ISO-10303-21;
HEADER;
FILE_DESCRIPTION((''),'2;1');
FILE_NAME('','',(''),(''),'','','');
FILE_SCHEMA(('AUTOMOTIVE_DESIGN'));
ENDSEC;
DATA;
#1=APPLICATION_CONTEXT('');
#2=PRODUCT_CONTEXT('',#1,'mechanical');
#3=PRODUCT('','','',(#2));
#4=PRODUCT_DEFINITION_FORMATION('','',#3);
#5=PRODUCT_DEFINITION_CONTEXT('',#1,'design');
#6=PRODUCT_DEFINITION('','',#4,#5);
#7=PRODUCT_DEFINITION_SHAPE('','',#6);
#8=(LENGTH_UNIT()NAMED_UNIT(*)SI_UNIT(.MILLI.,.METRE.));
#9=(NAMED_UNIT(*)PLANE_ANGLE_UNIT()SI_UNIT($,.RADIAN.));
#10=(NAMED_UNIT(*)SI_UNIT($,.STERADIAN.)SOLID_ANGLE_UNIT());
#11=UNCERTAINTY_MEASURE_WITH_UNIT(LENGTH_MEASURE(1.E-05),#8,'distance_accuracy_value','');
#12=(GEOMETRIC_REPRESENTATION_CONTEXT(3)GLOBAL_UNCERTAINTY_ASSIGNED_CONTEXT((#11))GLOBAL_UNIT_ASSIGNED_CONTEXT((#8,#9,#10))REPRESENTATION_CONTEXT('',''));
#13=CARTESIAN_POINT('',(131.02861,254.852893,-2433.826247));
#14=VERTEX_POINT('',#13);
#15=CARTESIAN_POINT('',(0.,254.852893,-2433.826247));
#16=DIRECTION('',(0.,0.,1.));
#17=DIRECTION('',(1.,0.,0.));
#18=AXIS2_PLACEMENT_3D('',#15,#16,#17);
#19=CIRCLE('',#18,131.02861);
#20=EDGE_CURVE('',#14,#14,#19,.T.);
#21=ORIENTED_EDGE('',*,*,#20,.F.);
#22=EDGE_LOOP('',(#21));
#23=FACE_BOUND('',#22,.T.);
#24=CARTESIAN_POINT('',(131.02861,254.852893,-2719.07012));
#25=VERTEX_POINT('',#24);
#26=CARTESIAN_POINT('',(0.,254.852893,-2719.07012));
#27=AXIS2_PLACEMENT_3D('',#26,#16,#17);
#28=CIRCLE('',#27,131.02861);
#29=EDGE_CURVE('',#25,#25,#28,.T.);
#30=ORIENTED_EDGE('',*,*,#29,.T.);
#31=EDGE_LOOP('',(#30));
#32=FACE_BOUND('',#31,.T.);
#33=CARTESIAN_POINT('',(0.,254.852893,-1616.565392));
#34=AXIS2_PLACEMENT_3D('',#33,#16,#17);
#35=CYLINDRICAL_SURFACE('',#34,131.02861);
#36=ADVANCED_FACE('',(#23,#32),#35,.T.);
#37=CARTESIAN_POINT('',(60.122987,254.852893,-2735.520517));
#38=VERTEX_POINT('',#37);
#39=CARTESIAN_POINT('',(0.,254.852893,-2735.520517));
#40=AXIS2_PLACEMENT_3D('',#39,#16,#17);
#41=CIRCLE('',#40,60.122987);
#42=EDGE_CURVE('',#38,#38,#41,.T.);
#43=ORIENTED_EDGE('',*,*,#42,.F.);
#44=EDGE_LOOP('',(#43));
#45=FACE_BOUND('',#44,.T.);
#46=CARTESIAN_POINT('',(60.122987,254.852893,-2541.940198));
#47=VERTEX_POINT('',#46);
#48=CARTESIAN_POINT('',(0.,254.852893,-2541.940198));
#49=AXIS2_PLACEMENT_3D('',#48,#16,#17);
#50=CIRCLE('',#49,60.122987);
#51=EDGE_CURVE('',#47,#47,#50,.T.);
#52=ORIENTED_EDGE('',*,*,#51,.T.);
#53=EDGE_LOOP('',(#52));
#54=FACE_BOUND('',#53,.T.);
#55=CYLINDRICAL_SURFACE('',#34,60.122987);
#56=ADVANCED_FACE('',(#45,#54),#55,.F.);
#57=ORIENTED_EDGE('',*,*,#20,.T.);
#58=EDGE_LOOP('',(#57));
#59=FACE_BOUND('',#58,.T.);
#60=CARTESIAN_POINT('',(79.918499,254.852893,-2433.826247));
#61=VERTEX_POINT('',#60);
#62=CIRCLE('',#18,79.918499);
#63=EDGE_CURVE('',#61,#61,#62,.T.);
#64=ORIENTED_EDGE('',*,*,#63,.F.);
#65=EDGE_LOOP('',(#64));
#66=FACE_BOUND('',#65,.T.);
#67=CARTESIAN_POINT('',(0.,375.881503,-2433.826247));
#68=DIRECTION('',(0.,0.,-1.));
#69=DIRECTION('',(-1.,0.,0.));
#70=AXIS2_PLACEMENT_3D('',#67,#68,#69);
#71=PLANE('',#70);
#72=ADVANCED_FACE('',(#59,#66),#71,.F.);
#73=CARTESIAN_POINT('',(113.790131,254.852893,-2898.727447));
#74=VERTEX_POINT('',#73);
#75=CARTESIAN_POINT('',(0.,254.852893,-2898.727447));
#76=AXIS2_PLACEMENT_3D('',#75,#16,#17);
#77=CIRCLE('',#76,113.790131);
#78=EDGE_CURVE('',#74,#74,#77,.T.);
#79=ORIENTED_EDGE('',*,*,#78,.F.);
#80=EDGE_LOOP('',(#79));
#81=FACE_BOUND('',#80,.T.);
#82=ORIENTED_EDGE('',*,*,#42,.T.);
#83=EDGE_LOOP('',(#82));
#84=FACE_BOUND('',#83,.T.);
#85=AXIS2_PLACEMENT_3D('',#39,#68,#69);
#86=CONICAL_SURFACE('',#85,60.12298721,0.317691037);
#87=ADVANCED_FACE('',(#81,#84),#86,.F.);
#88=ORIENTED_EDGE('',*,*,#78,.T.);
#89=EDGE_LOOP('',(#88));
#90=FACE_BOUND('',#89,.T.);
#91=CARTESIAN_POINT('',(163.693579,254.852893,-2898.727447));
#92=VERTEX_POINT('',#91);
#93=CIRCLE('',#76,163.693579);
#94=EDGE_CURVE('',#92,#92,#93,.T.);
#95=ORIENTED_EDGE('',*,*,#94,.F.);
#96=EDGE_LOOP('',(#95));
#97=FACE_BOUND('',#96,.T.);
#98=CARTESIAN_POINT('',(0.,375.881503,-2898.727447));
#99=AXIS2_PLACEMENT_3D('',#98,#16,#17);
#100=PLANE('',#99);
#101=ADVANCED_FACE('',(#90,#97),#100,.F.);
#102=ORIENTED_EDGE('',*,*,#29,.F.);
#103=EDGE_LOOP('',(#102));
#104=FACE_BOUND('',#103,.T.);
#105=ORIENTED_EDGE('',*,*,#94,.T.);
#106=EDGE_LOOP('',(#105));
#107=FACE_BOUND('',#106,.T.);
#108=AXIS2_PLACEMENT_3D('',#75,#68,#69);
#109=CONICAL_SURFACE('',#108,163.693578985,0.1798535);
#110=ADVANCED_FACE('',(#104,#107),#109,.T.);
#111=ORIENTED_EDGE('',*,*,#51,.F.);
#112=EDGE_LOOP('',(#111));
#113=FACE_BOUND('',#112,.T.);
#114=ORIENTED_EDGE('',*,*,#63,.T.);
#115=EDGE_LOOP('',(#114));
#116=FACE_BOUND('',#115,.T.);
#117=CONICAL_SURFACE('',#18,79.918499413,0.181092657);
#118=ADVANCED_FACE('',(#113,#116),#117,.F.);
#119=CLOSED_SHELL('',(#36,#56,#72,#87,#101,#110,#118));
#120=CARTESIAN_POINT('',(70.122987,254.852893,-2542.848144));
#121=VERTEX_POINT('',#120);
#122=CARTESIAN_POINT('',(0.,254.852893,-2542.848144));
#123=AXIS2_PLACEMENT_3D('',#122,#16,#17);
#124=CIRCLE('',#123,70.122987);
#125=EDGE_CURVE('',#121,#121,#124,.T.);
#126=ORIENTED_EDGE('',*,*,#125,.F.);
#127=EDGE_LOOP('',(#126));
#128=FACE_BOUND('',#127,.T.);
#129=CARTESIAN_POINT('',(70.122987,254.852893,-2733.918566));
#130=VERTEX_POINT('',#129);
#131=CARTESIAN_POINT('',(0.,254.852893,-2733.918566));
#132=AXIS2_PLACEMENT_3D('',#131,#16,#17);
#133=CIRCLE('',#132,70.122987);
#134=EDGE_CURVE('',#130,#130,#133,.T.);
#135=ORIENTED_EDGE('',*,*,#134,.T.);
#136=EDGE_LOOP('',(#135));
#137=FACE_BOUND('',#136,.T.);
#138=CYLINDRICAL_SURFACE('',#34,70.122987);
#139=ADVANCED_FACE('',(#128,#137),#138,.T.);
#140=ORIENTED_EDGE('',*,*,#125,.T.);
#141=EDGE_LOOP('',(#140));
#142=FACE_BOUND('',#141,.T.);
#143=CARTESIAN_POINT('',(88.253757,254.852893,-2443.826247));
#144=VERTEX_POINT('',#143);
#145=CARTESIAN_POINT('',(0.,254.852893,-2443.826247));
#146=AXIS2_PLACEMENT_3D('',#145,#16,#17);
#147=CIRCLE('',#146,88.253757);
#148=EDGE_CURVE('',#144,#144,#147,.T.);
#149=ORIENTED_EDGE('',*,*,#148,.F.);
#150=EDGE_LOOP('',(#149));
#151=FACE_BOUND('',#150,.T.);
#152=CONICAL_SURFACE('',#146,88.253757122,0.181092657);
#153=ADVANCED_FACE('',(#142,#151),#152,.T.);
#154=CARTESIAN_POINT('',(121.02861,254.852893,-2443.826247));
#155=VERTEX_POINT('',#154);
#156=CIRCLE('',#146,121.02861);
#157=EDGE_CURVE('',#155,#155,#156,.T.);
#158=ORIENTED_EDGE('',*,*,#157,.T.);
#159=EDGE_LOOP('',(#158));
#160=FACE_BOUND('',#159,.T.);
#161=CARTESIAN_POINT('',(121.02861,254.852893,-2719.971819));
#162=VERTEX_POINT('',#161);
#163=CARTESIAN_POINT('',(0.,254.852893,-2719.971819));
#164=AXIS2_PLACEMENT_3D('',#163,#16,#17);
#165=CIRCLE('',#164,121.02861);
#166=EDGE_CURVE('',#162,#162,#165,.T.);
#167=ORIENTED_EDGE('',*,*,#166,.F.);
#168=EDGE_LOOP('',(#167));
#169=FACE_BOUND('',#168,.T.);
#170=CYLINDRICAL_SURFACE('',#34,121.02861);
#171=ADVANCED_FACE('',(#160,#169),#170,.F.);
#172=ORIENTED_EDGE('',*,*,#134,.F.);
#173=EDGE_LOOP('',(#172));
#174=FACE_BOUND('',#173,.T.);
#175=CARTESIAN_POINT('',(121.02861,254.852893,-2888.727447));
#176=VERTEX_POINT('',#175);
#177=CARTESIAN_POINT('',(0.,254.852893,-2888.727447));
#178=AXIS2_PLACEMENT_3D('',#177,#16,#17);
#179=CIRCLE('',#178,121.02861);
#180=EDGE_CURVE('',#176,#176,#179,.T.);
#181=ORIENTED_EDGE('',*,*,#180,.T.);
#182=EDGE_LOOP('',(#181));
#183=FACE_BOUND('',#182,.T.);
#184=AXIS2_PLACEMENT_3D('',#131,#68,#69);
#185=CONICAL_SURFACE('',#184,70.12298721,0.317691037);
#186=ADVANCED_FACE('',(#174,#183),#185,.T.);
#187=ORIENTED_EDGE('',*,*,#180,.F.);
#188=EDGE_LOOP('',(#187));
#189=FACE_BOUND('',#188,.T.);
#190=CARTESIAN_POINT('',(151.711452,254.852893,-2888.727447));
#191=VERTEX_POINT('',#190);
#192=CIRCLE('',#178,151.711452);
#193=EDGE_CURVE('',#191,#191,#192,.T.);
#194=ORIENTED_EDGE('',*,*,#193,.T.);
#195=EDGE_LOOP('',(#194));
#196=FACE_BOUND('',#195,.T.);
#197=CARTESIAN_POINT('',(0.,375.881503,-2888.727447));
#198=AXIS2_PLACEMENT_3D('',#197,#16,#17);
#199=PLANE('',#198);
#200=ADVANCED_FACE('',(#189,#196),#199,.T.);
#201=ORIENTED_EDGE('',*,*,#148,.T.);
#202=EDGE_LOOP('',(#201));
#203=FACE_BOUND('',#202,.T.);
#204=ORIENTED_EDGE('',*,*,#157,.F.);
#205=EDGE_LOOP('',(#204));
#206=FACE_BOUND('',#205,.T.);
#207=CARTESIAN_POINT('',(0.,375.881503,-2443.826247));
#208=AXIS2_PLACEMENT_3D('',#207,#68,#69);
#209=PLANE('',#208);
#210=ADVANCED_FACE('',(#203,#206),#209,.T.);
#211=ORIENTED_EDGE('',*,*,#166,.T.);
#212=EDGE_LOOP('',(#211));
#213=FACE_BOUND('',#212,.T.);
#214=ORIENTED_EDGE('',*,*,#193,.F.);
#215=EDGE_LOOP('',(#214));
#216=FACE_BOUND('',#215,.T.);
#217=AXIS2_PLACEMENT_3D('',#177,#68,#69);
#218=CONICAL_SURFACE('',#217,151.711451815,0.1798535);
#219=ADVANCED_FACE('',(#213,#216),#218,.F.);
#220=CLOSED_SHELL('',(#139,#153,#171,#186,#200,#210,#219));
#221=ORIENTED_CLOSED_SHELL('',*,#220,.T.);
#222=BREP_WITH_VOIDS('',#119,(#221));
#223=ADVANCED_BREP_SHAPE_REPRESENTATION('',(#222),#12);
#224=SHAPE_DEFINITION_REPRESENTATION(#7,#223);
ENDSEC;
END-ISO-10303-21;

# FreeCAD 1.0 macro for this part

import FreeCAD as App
import Part
import Sketcher

V = App.Vector
Q = App.Units.Quantity

doc = App.newDocument("Part")
body = doc.addObject("PartDesign::Body", "Body")

sketch1 = body.newObject("Sketcher::SketchObject", "Sketch")
sketch1.AttachmentSupport = (doc.getObject("YZ_Plane"), [""])
sketch1.MapMode = "FlatFace"
sketch1.addGeometry([
    Part.LineSegment(V(385.881503, -2433.826247, 0), V(334.771392, -2433.826247, 0)),
    Part.LineSegment(V(334.771392, -2433.826247, 0), V(314.97588, -2541.940198, 0)),
    Part.LineSegment(V(314.97588, -2541.940198, 0), V(314.97588, -2735.520517, 0)),
    Part.LineSegment(V(314.97588, -2735.520517, 0), V(368.643024, -2898.727447, 0)),
    Part.LineSegment(V(368.643024, -2898.727447, 0), V(418.546472, -2898.727447, 0)),
    Part.LineSegment(V(418.546472, -2898.727447, 0), V(385.881503, -2719.07012, 0)),
    Part.LineSegment(V(385.881503, -2719.07012, 0), V(385.881503, -2433.826247, 0)),
    Part.LineSegment(V(343.10665, -2443.826247, 0), V(375.881503, -2443.826247, 0)),
    Part.LineSegment(V(375.881503, -2443.826247, 0), V(375.881503, -2719.971819, 0)),
    Part.LineSegment(V(375.881503, -2719.971819, 0), V(406.564344, -2888.727447, 0)),
    Part.LineSegment(V(406.564344, -2888.727447, 0), V(375.881503, -2888.727447, 0)),
    Part.LineSegment(V(375.881503, -2888.727447, 0), V(324.97588, -2733.918566, 0)),
    Part.LineSegment(V(324.97588, -2733.918566, 0), V(324.97588, -2542.848144, 0)),
    Part.LineSegment(V(324.97588, -2542.848144, 0), V(343.10665, -2443.826247, 0)),
], False)
sketch1.addGeometry(Part.LineSegment(V(254.852893, -2433.826247, 0), V(254.852893, -2898.727447, 0)), True)
sketch1.addConstraint([
    Sketcher.Constraint("Coincident", 0, 2, 1, 1),
    Sketcher.Constraint("Coincident", 1, 2, 2, 1),
    Sketcher.Constraint("Coincident", 2, 2, 3, 1),
    Sketcher.Constraint("Coincident", 3, 2, 4, 1),
    Sketcher.Constraint("Coincident", 4, 2, 5, 1),
    Sketcher.Constraint("Coincident", 5, 2, 6, 1),
    Sketcher.Constraint("Coincident", 6, 2, 0, 1),
    Sketcher.Constraint("Coincident", 7, 2, 8, 1),
    Sketcher.Constraint("Coincident", 8, 2, 9, 1),
    Sketcher.Constraint("Coincident", 9, 2, 10, 1),
    Sketcher.Constraint("Coincident", 10, 2, 11, 1),
    Sketcher.Constraint("Coincident", 11, 2, 12, 1),
    Sketcher.Constraint("Coincident", 12, 2, 13, 1),
    Sketcher.Constraint("Coincident", 13, 2, 7, 1),
    Sketcher.Constraint("Horizontal", 0),
    Sketcher.Constraint("Vertical", 2),
    Sketcher.Constraint("Horizontal", 4),
    Sketcher.Constraint("Vertical", 6),
    Sketcher.Constraint("Horizontal", 7),
    Sketcher.Constraint("Vertical", 8),
    Sketcher.Constraint("Horizontal", 10),
    Sketcher.Constraint("Vertical", 12),
    Sketcher.Constraint("Vertical", 14),
    Sketcher.Constraint("Parallel", 5, 9),
    Sketcher.Constraint("Parallel", 3, 11),
    Sketcher.Constraint("Parallel", 1, 13),
    Sketcher.Constraint("Horizontal", 6, 2, 14, 1),
    Sketcher.Constraint("Horizontal", 4, 2, 14, 2),
    Sketcher.Constraint("Vertical", 8, 2, 10, 2),
    Sketcher.Constraint("DistanceX", 7, 2, 6, 2, Q("10 mm")),
    Sketcher.Constraint("DistanceY", 7, 2, 6, 2, Q("10 mm")),
    Sketcher.Constraint("DistanceY", 4, 2, 9, 2, Q("10 mm")),
    Sketcher.Constraint("DistanceX", 2, 2, 11, 2, Q("10 mm")),
    Sketcher.Constraint("DistanceY", 14, 2, 14, 1, Q("464.9012 mm")),
    Sketcher.Constraint("DistanceX", 0, 2, 0, 1, Q("51.110111 mm")),
    Sketcher.Constraint("DistanceX", 4, 1, 4, 2, Q("49.903448 mm")),
    Sketcher.Constraint("DistanceX", 10, 2, 10, 1, Q("30.682841 mm")),
    Sketcher.Constraint("DistanceY", 2, 2, 2, 1, Q("193.580319 mm")),
    Sketcher.Constraint("DistanceY", 12, 1, 12, 2, Q("191.070421 mm")),
    Sketcher.Constraint("DistanceY", 1, 2, -1, 1, Q("2541.940198 mm")),
    Sketcher.Constraint("DistanceY", 8, 2, 5, 2, Q("0.901699 mm")),
    Sketcher.Constraint("DistanceX", 14, 1, 0, 2, Q("79.918499 mm")),
    Sketcher.Constraint("DistanceX", 7, 1, 7, 2, Q("32.774853 mm")),
    Sketcher.Constraint("DistanceY", 6, 1, 6, 2, Q("285.243873 mm")),
    Sketcher.Constraint("DistanceX", -1, 1, 1, 2, Q("314.97588 mm")),
    Sketcher.Constraint("DistanceX", -1, 1, 4, 2, Q("418.546472 mm")),
])
revolution = body.newObject("PartDesign::Revolution", "Revolution")
revolution.Profile = sketch1
revolution.ReferenceAxis = (sketch1, ["Axis0"])
revolution.Angle = 360

doc.recompute()
